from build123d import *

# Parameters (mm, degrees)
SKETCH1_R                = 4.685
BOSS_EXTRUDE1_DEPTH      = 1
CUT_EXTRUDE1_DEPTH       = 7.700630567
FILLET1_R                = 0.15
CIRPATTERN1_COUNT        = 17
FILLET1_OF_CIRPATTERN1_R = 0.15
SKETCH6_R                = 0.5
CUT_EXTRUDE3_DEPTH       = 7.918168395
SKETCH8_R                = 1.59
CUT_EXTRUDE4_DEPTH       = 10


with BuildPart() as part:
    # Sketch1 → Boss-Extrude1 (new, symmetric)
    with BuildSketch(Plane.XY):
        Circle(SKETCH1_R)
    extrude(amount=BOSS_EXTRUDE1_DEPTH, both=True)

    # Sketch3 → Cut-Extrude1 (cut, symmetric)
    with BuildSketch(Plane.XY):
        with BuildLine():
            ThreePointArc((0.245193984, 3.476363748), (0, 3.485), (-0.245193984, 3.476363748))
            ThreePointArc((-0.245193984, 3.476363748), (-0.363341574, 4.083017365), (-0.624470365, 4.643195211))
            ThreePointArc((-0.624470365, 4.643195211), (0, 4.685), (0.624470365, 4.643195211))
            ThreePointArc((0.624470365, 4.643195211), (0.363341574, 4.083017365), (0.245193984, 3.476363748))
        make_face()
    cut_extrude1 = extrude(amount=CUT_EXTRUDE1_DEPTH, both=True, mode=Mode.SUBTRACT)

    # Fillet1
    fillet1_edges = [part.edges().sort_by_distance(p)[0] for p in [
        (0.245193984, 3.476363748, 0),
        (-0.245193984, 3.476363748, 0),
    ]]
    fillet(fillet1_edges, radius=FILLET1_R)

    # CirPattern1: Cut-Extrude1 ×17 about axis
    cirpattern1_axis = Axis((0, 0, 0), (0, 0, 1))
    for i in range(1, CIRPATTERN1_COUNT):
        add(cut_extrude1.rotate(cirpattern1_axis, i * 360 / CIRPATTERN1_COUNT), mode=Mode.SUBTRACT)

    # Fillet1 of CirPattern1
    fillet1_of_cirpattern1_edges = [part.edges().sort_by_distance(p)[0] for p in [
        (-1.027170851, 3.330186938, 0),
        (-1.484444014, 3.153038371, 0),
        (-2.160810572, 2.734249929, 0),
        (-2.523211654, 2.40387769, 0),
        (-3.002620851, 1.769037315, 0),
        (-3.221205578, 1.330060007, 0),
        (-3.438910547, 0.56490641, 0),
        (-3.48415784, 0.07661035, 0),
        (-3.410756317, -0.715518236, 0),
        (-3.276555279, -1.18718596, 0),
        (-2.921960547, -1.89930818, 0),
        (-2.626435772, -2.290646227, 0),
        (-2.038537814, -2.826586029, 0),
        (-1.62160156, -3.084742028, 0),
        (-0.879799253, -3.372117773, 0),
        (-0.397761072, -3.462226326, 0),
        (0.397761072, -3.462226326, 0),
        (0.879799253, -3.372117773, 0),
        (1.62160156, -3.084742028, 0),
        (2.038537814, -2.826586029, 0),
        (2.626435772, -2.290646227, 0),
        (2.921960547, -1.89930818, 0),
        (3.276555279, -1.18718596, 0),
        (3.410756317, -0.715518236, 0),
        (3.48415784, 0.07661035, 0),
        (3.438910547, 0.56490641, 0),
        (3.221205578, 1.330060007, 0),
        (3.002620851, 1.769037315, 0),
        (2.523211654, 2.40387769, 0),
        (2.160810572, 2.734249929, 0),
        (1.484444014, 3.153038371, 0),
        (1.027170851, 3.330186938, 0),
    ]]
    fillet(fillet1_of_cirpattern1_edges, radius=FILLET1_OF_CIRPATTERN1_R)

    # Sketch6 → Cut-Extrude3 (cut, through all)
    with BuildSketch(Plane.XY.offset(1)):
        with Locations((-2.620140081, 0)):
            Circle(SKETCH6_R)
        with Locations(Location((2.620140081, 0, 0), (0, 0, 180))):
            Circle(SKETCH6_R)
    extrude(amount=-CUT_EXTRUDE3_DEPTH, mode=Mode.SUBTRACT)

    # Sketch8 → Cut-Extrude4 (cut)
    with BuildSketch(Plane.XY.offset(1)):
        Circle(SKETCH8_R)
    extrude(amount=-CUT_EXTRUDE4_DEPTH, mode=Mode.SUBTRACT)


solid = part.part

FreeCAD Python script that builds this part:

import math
import FreeCAD as App
import Part
import Sketcher

V = App.Vector
Q = App.Units.Quantity


def edges_at(feature, points):
    """Names of the edges that pass closest to the given points."""
    edges = feature.Shape.Edges
    near = lambda p: min(range(len(edges)), key=lambda i: edges[i].distToShape(Part.Vertex(*p))[0])
    return sorted({f"Edge{near(p) + 1}" for p in points})

doc = App.newDocument("Part")
params = doc.addObject("Spreadsheet::Sheet", "Params")
for row, (alias, value) in enumerate([
    ("sketch1_diameter", "9.37 mm"),
    ("pad1_length", "2 mm"),
    ("pocket1_length", "15.401261 mm"),
    ("fillet_radius", "0.15 mm"),
    ("fillet2_radius", "0.15 mm"),
    ("sketch3_diameter", "1 mm"),
    ("sketch4_diameter", "3.18 mm"),
    ("pocket3_length", "10 mm"),
], start=1):
    params.set(f"A{row}", alias)
    params.set(f"B{row}", "=" + value)
    params.setAlias(f"B{row}", alias)

body = doc.addObject("PartDesign::Body", "Body")

# Sketch on XY plane
sketch1 = body.newObject("Sketcher::SketchObject", "Sketch")
sketch1.AttachmentSupport = (doc.getObject("XY_Plane"), [""])
sketch1.MapMode = "FlatFace"
sketch1.addGeometry(Part.Circle(V(0, 0, 0), V(0, 0, 1), 4.685), False)
sketch1.addConstraint([
    Sketcher.Constraint("Coincident", 0, 3, -1, 1),
    Sketcher.Constraint("Diameter", 0, Q("9.37 mm")),
])
sketch1.setExpression("Constraints[1]", "Params.sketch1_diameter")
pad1 = body.newObject("PartDesign::Pad", "Pad")
pad1.Profile = sketch1
pad1.setExpression("Length", "Params.pad1_length")
pad1.Midplane = True

# Sketch on XY plane
sketch2 = body.newObject("Sketcher::SketchObject", "Sketch001")
sketch2.AttachmentSupport = (doc.getObject("XY_Plane"), [""])
sketch2.MapMode = "FlatFace"
sketch2.addGeometry([
    Part.ArcOfCircle(Part.Circle(V(0, 0, 0), V(0, 0, 1), 3.485), math.radians(85.96551), math.radians(94.03449)),
    Part.ArcOfCircle(Part.Circle(V(2.779637, 3.297605, 0), V(0, 0, 1), 2.540739), math.radians(148.021179), math.radians(175.96551)),
    Part.ArcOfCircle(Part.Circle(V(0, 0, 0), V(0, 0, 1), 4.685), math.radians(82.340167), math.radians(97.659833)),
    Part.ArcOfCircle(Part.Circle(V(-2.779637, 3.297605, 0), V(0, 0, 1), 2.540739), math.radians(4.03449), math.radians(31.978821)),
], False)
sketch2.addConstraint([
    Sketcher.Constraint("Coincident", 0, 1, 1, 2),
    Sketcher.Constraint("Coincident", 1, 1, 2, 1),
    Sketcher.Constraint("Coincident", 2, 2, 3, 2),
    Sketcher.Constraint("Coincident", 3, 1, 0, 2),
    Sketcher.Constraint("Coincident", 0, 3, -1, 1),
    Sketcher.Constraint("Coincident", 2, 3, -1, 1),
    Sketcher.Constraint("Equal", 1, 3),
    Sketcher.Constraint("Symmetric", 1, 3, 3, 3, -2),
    Sketcher.Constraint("Radius", 0, Q("3.485 mm")),
    Sketcher.Constraint("Radius", 2, Q("4.685 mm")),
    Sketcher.Constraint("Radius", 1, Q("2.540739 mm")),
    Sketcher.Constraint("DistanceX", -1, 1, 1, 1, Q("0.62447 mm")),
    Sketcher.Constraint("DistanceY", 1, 3, 0, 1, Q("0.178759 mm")),
])
pocket1 = body.newObject("PartDesign::Pocket", "Pocket")
pocket1.Profile = sketch2
pocket1.setExpression("Length", "Params.pocket1_length")
pocket1.Midplane = True
doc.recompute()

fillet = body.newObject("PartDesign::Fillet", "Fillet")
fillet.Base = (pocket1, edges_at(pocket1, [(0.245, 3.476, 0), (-0.245, 3.476, 0)]))
fillet.setExpression("Radius", "Params.fillet_radius")
doc.recompute()

polarpattern = body.newObject("PartDesign::PolarPattern", "PolarPattern")
polarpattern.Originals = [pocket1]
polarpattern.Axis = (doc.getObject("Z_Axis"), [""])
polarpattern.Angle = 360
polarpattern.Occurrences = 17
body.Tip = polarpattern
doc.recompute()

fillet2 = body.newObject("PartDesign::Fillet", "Fillet001")
fillet2.Base = (polarpattern, edges_at(polarpattern, [
    (-1.027, 3.33, 0),
    (-1.484, 3.153, 0),
    (-2.161, 2.734, 0),
    (-2.523, 2.404, 0),
    (-3.003, 1.769, 0),
    (-3.221, 1.33, 0),
    (-3.439, 0.565, 0),
    (-3.484, 0.077, 0),
    (-3.411, -0.716, 0),
    (-3.277, -1.187, 0),
    (-2.922, -1.899, 0),
    (-2.626, -2.291, 0),
    (-2.039, -2.827, 0),
    (-1.622, -3.085, 0),
    (-0.88, -3.372, 0),
    (-0.398, -3.462, 0),
    (0.398, -3.462, 0),
    (0.88, -3.372, 0),
    (1.622, -3.085, 0),
    (2.039, -2.827, 0),
    (2.626, -2.291, 0),
    (2.922, -1.899, 0),
    (3.277, -1.187, 0),
    (3.411, -0.716, 0),
    (3.484, 0.077, 0),
    (3.439, 0.565, 0),
    (3.221, 1.33, 0),
    (3.003, 1.769, 0),
    (2.523, 2.404, 0),
    (2.161, 2.734, 0),
    (1.484, 3.153, 0),
    (1.027, 3.33, 0),
]))
fillet2.setExpression("Radius", "Params.fillet2_radius")

# Sketch on XY plane
sketch3 = body.newObject("Sketcher::SketchObject", "Sketch002")
sketch3.AttachmentSupport = (doc.getObject("XY_Plane"), [""])
sketch3.MapMode = "FlatFace"
sketch3.AttachmentOffset = App.Placement(V(0, 0, 1), App.Rotation())
sketch3.addGeometry([
    Part.Circle(V(-2.62014, 0, 0), V(0, 0, 1), 0.5),
    Part.Circle(V(2.62014, 0, 0), V(0, 0, 1), 0.5),
], False)
sketch3.addConstraint([
    Sketcher.Constraint("Equal", 0, 1),
    Sketcher.Constraint("Symmetric", 0, 3, 1, 3, -1, 1),
    Sketcher.Constraint("PointOnObject", 0, 3, -1),
    Sketcher.Constraint("Diameter", 0, Q("1 mm")),
    Sketcher.Constraint("DistanceX", 0, 3, -1, 1, Q("2.62014 mm")),
])
sketch3.setExpression("Constraints[3]", "Params.sketch3_diameter")
pocket2 = body.newObject("PartDesign::Pocket", "Pocket001")
pocket2.Profile = sketch3
pocket2.Type = "ThroughAll"

# Sketch on XY plane
sketch4 = body.newObject("Sketcher::SketchObject", "Sketch003")
sketch4.AttachmentSupport = (doc.getObject("XY_Plane"), [""])
sketch4.MapMode = "FlatFace"
sketch4.AttachmentOffset = App.Placement(V(0, 0, 1), App.Rotation())
sketch4.addGeometry(Part.Circle(V(0, 0, 0), V(0, 0, 1), 1.59), False)
sketch4.addConstraint([
    Sketcher.Constraint("Coincident", 0, 3, -1, 1),
    Sketcher.Constraint("Diameter", 0, Q("3.18 mm")),
])
sketch4.setExpression("Constraints[1]", "Params.sketch4_diameter")
pocket3 = body.newObject("PartDesign::Pocket", "Pocket002")
pocket3.Profile = sketch4
pocket3.setExpression("Length", "Params.pocket3_length")

doc.recompute()
